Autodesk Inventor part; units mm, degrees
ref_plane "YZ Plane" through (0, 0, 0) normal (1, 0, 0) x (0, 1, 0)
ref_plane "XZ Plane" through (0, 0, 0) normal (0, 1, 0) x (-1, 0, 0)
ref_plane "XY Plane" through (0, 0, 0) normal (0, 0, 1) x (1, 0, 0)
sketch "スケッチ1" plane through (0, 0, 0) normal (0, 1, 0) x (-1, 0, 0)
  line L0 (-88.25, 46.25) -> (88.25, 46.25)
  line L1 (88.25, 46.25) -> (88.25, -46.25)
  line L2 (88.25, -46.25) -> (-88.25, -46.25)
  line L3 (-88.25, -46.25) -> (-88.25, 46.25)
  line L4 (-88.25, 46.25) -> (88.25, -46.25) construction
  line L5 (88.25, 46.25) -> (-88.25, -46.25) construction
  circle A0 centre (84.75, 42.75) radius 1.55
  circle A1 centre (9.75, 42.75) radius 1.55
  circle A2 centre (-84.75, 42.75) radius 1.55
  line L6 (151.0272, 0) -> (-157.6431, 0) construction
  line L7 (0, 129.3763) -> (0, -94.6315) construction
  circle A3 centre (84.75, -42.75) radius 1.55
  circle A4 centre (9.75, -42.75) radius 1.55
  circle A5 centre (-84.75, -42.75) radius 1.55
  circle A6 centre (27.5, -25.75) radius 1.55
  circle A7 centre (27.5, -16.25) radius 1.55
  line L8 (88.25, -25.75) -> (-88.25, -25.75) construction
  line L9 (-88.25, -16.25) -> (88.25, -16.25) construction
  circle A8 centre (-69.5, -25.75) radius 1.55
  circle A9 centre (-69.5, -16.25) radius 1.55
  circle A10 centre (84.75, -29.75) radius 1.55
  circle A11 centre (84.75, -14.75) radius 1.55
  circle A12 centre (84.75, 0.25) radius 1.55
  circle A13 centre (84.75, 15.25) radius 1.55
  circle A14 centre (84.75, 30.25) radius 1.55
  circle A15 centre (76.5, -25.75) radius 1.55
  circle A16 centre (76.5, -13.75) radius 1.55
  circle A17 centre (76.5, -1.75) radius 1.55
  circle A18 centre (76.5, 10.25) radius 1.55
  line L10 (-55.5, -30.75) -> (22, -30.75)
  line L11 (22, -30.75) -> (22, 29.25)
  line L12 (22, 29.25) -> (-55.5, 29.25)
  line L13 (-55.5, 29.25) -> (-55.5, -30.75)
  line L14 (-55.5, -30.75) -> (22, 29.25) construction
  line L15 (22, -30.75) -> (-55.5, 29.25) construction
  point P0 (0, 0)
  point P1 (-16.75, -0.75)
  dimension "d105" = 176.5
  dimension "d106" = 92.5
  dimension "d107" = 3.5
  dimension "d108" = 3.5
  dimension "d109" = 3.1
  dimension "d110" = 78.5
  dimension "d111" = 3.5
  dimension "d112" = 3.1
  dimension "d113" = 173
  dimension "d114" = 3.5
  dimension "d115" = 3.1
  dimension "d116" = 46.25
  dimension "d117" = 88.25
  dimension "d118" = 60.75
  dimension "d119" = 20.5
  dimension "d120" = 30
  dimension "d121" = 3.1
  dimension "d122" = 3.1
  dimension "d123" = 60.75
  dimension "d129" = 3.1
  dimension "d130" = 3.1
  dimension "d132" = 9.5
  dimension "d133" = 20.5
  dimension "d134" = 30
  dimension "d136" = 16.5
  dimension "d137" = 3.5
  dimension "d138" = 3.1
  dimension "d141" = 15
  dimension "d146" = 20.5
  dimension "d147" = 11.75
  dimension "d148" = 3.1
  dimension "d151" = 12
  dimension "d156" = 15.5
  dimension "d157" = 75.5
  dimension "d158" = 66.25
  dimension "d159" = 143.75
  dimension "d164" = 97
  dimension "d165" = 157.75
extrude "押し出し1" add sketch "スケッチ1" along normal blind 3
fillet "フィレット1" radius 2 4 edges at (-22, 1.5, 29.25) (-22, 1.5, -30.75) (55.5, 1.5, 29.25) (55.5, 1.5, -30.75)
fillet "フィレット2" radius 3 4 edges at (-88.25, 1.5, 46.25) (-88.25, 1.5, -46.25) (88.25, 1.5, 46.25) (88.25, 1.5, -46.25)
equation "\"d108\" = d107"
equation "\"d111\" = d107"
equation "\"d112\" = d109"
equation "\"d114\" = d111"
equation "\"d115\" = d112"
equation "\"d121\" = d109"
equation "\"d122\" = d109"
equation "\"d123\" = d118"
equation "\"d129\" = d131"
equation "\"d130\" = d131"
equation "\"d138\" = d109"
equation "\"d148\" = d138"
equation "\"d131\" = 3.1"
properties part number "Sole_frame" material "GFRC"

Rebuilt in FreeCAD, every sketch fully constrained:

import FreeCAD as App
import Part
import Sketcher


def edges_at(feature, points):
    """Names of the edges that pass closest to the given points."""
    edges = feature.Shape.Edges
    near = lambda p: min(range(len(edges)), key=lambda i: edges[i].distToShape(Part.Vertex(*p))[0])
    return sorted({f"Edge{near(p) + 1}" for p in points})


def add_polygon(sketch, points):
    """Adds a closed chain of lines whose ends are joined by coincident constraints."""
    first, n = sketch.GeometryCount, len(points)
    for a, b in zip(points, points[1:] + points[:1]):
        sketch.addGeometry(Part.LineSegment(App.Vector(*a, 0), App.Vector(*b, 0)), False)
    for i in range(n):
        sketch.addConstraint(Sketcher.Constraint("Coincident", first + i, 2, first + (i + 1) % n, 1))

doc = App.newDocument("Part")
body = doc.addObject("PartDesign::Body", "Body")

# Sketch on XZ plane
sketch1 = doc.addObject("Sketcher::SketchObject", "Sketch")
body.addObject(sketch1)
sketch1.AttachmentSupport = (doc.XZ_Plane, [""])
sketch1.MapMode = "FlatFace"
add_polygon(sketch1, [(-88.25, 46.25), (88.25, 46.25), (88.25, -46.25), (-88.25, -46.25)])  # lines 0-3
sketch1.addGeometry(Part.Circle(App.Vector(84.75, -42.75, 0), App.Vector(0, 0, 1), 1.55), False)  # 4
sketch1.addGeometry(Part.Circle(App.Vector(69.5, -25.75, 0), App.Vector(0, 0, 1), 1.55), False)  # 5
sketch1.addGeometry(Part.Circle(App.Vector(69.5, -16.25, 0), App.Vector(0, 0, 1), 1.55), False)  # 6
add_polygon(sketch1, [(-22, -30.75), (55.5, -30.75), (55.5, 29.25), (-22, 29.25)])  # lines 7-10
sketch1.addGeometry(Part.Circle(App.Vector(-9.75, -42.75, 0), App.Vector(0, 0, 1), 1.55), False)  # 11
sketch1.addGeometry(Part.Circle(App.Vector(-27.5, -25.75, 0), App.Vector(0, 0, 1), 1.55), False)  # 12
sketch1.addGeometry(Part.Circle(App.Vector(-84.75, -42.75, 0), App.Vector(0, 0, 1), 1.55), False)  # 13
sketch1.addGeometry(Part.Circle(App.Vector(-84.75, -29.75, 0), App.Vector(0, 0, 1), 1.55), False)  # 14
sketch1.addGeometry(Part.Circle(App.Vector(-76.5, -25.75, 0), App.Vector(0, 0, 1), 1.55), False)  # 15
sketch1.addGeometry(Part.Circle(App.Vector(-27.5, -16.25, 0), App.Vector(0, 0, 1), 1.55), False)  # 16
sketch1.addGeometry(Part.Circle(App.Vector(-76.5, -13.75, 0), App.Vector(0, 0, 1), 1.55), False)  # 17
sketch1.addGeometry(Part.Circle(App.Vector(-84.75, -14.75, 0), App.Vector(0, 0, 1), 1.55), False)  # 18
sketch1.addGeometry(Part.Circle(App.Vector(-76.5, -1.75, 0), App.Vector(0, 0, 1), 1.55), False)  # 19
sketch1.addGeometry(Part.Circle(App.Vector(84.75, 42.75, 0), App.Vector(0, 0, 1), 1.55), False)  # 20
sketch1.addGeometry(Part.Circle(App.Vector(-84.75, 0.25, 0), App.Vector(0, 0, 1), 1.55), False)  # 21
sketch1.addGeometry(Part.Circle(App.Vector(-76.5, 10.25, 0), App.Vector(0, 0, 1), 1.55), False)  # 22
sketch1.addGeometry(Part.Circle(App.Vector(-84.75, 15.25, 0), App.Vector(0, 0, 1), 1.55), False)  # 23
sketch1.addGeometry(Part.Circle(App.Vector(-9.75, 42.75, 0), App.Vector(0, 0, 1), 1.55), False)  # 24
sketch1.addGeometry(Part.Circle(App.Vector(-84.75, 30.25, 0), App.Vector(0, 0, 1), 1.55), False)  # 25
sketch1.addGeometry(Part.Circle(App.Vector(-84.75, 42.75, 0), App.Vector(0, 0, 1), 1.55), False)  # 26
sketch1.addConstraint(Sketcher.Constraint("Horizontal", 0))
sketch1.addConstraint(Sketcher.Constraint("Vertical", 1))
sketch1.addConstraint(Sketcher.Constraint("Horizontal", 2))
sketch1.addConstraint(Sketcher.Constraint("Vertical", 3))
sketch1.addConstraint(Sketcher.Constraint("Horizontal", 7))
sketch1.addConstraint(Sketcher.Constraint("Vertical", 8))
sketch1.addConstraint(Sketcher.Constraint("Horizontal", 9))
sketch1.addConstraint(Sketcher.Constraint("Vertical", 10))
sketch1.addConstraint(Sketcher.Constraint("Equal", 4, 5))
sketch1.addConstraint(Sketcher.Constraint("Equal", 5, 6))
sketch1.addConstraint(Sketcher.Constraint("Equal", 6, 11))
sketch1.addConstraint(Sketcher.Constraint("Equal", 11, 12))
sketch1.addConstraint(Sketcher.Constraint("Equal", 12, 13))
sketch1.addConstraint(Sketcher.Constraint("Equal", 13, 14))
sketch1.addConstraint(Sketcher.Constraint("Equal", 14, 15))
sketch1.addConstraint(Sketcher.Constraint("Equal", 15, 16))
sketch1.addConstraint(Sketcher.Constraint("Equal", 16, 17))
sketch1.addConstraint(Sketcher.Constraint("Equal", 17, 18))
sketch1.addConstraint(Sketcher.Constraint("Equal", 18, 19))
sketch1.addConstraint(Sketcher.Constraint("Equal", 19, 20))
sketch1.addConstraint(Sketcher.Constraint("Equal", 20, 21))
sketch1.addConstraint(Sketcher.Constraint("Equal", 21, 22))
sketch1.addConstraint(Sketcher.Constraint("Equal", 22, 23))
sketch1.addConstraint(Sketcher.Constraint("Equal", 23, 24))
sketch1.addConstraint(Sketcher.Constraint("Equal", 24, 25))
sketch1.addConstraint(Sketcher.Constraint("Equal", 25, 26))
sketch1.addConstraint(Sketcher.Constraint("Symmetric", 13, 3, 20, 3, -1, 1))
sketch1.addConstraint(Sketcher.Constraint("Symmetric", 4, 3, 26, 3, -1, 1))
sketch1.addConstraint(Sketcher.Constraint("Symmetric", 0, 2, 2, 2, -1, 1))
sketch1.addConstraint(Sketcher.Constraint("Symmetric", 4, 3, 13, 3, -2))
sketch1.addConstraint(Sketcher.Constraint("Symmetric", 11, 3, 24, 3, -1))
sketch1.addConstraint(Sketcher.Constraint("Horizontal", 4, 3, 11, 3))
sketch1.addConstraint(Sketcher.Constraint("Horizontal", 5, 3, 12, 3))
sketch1.addConstraint(Sketcher.Constraint("Horizontal", 12, 3, 15, 3))
sketch1.addConstraint(Sketcher.Constraint("Horizontal", 6, 3, 16, 3))
sketch1.addConstraint(Sketcher.Constraint("Vertical", 5, 3, 6, 3))
sketch1.addConstraint(Sketcher.Constraint("Vertical", 13, 3, 14, 3))
sketch1.addConstraint(Sketcher.Constraint("Vertical", 12, 3, 16, 3))
sketch1.addConstraint(Sketcher.Constraint("Vertical", 15, 3, 17, 3))
sketch1.addConstraint(Sketcher.Constraint("Vertical", 14, 3, 18, 3))
sketch1.addConstraint(Sketcher.Constraint("Vertical", 17, 3, 19, 3))
sketch1.addConstraint(Sketcher.Constraint("Vertical", 18, 3, 21, 3))
sketch1.addConstraint(Sketcher.Constraint("Vertical", 19, 3, 22, 3))
sketch1.addConstraint(Sketcher.Constraint("Vertical", 21, 3, 23, 3))
sketch1.addConstraint(Sketcher.Constraint("Vertical", 23, 3, 25, 3))
sketch1.addConstraint(Sketcher.Constraint("Diameter", 4, 3.1))
sketch1.addConstraint(Sketcher.Constraint("DistanceX", 0, 1, 0, 2, 176.5))
sketch1.addConstraint(Sketcher.Constraint("DistanceY", 1, 2, 1, 1, 92.5))
sketch1.addConstraint(Sketcher.Constraint("DistanceX", 12, 3, 5, 3, 97.0))
sketch1.addConstraint(Sketcher.Constraint("DistanceY", 15, 3, 17, 3, 12.0))
sketch1.addConstraint(Sketcher.Constraint("DistanceY", 14, 3, 18, 3, 15.0))
sketch1.addConstraint(Sketcher.Constraint("DistanceY", 17, 3, 19, 3, 12.0))
sketch1.addConstraint(Sketcher.Constraint("DistanceY", 18, 3, 21, 3, 15.0))
sketch1.addConstraint(Sketcher.Constraint("DistanceY", 19, 3, 22, 3, 12.0))
sketch1.addConstraint(Sketcher.Constraint("DistanceY", 21, 3, 22, 3, 10.0))
sketch1.addConstraint(Sketcher.Constraint("DistanceY", 21, 3, 23, 3, 15.0))
sketch1.addConstraint(Sketcher.Constraint("DistanceY", 23, 3, 25, 3, 15.0))
sketch1.addConstraint(Sketcher.Constraint("DistanceY", 1, 2, 6, 3, 30.0))
sketch1.addConstraint(Sketcher.Constraint("DistanceY", 4, 3, 7, 2, 12.0))
sketch1.addConstraint(Sketcher.Constraint("DistanceY", 5, 3, 6, 3, 9.5))
sketch1.addConstraint(Sketcher.Constraint("DistanceX", 20, 3, 0, 2, 3.5))
sketch1.addConstraint(Sketcher.Constraint("DistanceY", 20, 3, 0, 2, 3.5))
sketch1.addConstraint(Sketcher.Constraint("DistanceY", 8, 1, 8, 2, 60.0))
sketch1.addConstraint(Sketcher.Constraint("DistanceX", 2, 2, 15, 3, 11.75))
sketch1.addConstraint(Sketcher.Constraint("DistanceX", 7, 1, 7, 2, 77.5))
sketch1.addConstraint(Sketcher.Constraint("DistanceX", 9, 2, -1, 1, 22.0))
sketch1.addConstraint(Sketcher.Constraint("DistanceX", 13, 3, 11, 3, 75.0))
sketch1.addConstraint(Sketcher.Constraint("DistanceX", 15, 3, 12, 3, 49.0))
pad1 = doc.addObject("PartDesign::Pad", "Pad")
body.addObject(pad1)
pad1.Profile = sketch1
pad1.Length = 3
pad1.Reversed = True
doc.recompute()

fillet = doc.addObject("PartDesign::Fillet", "Fillet")
body.addObject(fillet)
fillet.Base = (pad1, edges_at(pad1, [
    (-22, 1.5, 29.25),
    (-22, 1.5, -30.75),
    (55.5, 1.5, 29.25),
    (55.5, 1.5, -30.75),
]))
fillet.Radius = 2
doc.recompute()

fillet2 = doc.addObject("PartDesign::Fillet", "Fillet001")
body.addObject(fillet2)
fillet2.Base = (fillet, edges_at(fillet, [
    (-88.25, 1.5, 46.25),
    (-88.25, 1.5, -46.25),
    (88.25, 1.5, 46.25),
    (88.25, 1.5, -46.25),
]))
fillet2.Radius = 3

doc.recompute()
